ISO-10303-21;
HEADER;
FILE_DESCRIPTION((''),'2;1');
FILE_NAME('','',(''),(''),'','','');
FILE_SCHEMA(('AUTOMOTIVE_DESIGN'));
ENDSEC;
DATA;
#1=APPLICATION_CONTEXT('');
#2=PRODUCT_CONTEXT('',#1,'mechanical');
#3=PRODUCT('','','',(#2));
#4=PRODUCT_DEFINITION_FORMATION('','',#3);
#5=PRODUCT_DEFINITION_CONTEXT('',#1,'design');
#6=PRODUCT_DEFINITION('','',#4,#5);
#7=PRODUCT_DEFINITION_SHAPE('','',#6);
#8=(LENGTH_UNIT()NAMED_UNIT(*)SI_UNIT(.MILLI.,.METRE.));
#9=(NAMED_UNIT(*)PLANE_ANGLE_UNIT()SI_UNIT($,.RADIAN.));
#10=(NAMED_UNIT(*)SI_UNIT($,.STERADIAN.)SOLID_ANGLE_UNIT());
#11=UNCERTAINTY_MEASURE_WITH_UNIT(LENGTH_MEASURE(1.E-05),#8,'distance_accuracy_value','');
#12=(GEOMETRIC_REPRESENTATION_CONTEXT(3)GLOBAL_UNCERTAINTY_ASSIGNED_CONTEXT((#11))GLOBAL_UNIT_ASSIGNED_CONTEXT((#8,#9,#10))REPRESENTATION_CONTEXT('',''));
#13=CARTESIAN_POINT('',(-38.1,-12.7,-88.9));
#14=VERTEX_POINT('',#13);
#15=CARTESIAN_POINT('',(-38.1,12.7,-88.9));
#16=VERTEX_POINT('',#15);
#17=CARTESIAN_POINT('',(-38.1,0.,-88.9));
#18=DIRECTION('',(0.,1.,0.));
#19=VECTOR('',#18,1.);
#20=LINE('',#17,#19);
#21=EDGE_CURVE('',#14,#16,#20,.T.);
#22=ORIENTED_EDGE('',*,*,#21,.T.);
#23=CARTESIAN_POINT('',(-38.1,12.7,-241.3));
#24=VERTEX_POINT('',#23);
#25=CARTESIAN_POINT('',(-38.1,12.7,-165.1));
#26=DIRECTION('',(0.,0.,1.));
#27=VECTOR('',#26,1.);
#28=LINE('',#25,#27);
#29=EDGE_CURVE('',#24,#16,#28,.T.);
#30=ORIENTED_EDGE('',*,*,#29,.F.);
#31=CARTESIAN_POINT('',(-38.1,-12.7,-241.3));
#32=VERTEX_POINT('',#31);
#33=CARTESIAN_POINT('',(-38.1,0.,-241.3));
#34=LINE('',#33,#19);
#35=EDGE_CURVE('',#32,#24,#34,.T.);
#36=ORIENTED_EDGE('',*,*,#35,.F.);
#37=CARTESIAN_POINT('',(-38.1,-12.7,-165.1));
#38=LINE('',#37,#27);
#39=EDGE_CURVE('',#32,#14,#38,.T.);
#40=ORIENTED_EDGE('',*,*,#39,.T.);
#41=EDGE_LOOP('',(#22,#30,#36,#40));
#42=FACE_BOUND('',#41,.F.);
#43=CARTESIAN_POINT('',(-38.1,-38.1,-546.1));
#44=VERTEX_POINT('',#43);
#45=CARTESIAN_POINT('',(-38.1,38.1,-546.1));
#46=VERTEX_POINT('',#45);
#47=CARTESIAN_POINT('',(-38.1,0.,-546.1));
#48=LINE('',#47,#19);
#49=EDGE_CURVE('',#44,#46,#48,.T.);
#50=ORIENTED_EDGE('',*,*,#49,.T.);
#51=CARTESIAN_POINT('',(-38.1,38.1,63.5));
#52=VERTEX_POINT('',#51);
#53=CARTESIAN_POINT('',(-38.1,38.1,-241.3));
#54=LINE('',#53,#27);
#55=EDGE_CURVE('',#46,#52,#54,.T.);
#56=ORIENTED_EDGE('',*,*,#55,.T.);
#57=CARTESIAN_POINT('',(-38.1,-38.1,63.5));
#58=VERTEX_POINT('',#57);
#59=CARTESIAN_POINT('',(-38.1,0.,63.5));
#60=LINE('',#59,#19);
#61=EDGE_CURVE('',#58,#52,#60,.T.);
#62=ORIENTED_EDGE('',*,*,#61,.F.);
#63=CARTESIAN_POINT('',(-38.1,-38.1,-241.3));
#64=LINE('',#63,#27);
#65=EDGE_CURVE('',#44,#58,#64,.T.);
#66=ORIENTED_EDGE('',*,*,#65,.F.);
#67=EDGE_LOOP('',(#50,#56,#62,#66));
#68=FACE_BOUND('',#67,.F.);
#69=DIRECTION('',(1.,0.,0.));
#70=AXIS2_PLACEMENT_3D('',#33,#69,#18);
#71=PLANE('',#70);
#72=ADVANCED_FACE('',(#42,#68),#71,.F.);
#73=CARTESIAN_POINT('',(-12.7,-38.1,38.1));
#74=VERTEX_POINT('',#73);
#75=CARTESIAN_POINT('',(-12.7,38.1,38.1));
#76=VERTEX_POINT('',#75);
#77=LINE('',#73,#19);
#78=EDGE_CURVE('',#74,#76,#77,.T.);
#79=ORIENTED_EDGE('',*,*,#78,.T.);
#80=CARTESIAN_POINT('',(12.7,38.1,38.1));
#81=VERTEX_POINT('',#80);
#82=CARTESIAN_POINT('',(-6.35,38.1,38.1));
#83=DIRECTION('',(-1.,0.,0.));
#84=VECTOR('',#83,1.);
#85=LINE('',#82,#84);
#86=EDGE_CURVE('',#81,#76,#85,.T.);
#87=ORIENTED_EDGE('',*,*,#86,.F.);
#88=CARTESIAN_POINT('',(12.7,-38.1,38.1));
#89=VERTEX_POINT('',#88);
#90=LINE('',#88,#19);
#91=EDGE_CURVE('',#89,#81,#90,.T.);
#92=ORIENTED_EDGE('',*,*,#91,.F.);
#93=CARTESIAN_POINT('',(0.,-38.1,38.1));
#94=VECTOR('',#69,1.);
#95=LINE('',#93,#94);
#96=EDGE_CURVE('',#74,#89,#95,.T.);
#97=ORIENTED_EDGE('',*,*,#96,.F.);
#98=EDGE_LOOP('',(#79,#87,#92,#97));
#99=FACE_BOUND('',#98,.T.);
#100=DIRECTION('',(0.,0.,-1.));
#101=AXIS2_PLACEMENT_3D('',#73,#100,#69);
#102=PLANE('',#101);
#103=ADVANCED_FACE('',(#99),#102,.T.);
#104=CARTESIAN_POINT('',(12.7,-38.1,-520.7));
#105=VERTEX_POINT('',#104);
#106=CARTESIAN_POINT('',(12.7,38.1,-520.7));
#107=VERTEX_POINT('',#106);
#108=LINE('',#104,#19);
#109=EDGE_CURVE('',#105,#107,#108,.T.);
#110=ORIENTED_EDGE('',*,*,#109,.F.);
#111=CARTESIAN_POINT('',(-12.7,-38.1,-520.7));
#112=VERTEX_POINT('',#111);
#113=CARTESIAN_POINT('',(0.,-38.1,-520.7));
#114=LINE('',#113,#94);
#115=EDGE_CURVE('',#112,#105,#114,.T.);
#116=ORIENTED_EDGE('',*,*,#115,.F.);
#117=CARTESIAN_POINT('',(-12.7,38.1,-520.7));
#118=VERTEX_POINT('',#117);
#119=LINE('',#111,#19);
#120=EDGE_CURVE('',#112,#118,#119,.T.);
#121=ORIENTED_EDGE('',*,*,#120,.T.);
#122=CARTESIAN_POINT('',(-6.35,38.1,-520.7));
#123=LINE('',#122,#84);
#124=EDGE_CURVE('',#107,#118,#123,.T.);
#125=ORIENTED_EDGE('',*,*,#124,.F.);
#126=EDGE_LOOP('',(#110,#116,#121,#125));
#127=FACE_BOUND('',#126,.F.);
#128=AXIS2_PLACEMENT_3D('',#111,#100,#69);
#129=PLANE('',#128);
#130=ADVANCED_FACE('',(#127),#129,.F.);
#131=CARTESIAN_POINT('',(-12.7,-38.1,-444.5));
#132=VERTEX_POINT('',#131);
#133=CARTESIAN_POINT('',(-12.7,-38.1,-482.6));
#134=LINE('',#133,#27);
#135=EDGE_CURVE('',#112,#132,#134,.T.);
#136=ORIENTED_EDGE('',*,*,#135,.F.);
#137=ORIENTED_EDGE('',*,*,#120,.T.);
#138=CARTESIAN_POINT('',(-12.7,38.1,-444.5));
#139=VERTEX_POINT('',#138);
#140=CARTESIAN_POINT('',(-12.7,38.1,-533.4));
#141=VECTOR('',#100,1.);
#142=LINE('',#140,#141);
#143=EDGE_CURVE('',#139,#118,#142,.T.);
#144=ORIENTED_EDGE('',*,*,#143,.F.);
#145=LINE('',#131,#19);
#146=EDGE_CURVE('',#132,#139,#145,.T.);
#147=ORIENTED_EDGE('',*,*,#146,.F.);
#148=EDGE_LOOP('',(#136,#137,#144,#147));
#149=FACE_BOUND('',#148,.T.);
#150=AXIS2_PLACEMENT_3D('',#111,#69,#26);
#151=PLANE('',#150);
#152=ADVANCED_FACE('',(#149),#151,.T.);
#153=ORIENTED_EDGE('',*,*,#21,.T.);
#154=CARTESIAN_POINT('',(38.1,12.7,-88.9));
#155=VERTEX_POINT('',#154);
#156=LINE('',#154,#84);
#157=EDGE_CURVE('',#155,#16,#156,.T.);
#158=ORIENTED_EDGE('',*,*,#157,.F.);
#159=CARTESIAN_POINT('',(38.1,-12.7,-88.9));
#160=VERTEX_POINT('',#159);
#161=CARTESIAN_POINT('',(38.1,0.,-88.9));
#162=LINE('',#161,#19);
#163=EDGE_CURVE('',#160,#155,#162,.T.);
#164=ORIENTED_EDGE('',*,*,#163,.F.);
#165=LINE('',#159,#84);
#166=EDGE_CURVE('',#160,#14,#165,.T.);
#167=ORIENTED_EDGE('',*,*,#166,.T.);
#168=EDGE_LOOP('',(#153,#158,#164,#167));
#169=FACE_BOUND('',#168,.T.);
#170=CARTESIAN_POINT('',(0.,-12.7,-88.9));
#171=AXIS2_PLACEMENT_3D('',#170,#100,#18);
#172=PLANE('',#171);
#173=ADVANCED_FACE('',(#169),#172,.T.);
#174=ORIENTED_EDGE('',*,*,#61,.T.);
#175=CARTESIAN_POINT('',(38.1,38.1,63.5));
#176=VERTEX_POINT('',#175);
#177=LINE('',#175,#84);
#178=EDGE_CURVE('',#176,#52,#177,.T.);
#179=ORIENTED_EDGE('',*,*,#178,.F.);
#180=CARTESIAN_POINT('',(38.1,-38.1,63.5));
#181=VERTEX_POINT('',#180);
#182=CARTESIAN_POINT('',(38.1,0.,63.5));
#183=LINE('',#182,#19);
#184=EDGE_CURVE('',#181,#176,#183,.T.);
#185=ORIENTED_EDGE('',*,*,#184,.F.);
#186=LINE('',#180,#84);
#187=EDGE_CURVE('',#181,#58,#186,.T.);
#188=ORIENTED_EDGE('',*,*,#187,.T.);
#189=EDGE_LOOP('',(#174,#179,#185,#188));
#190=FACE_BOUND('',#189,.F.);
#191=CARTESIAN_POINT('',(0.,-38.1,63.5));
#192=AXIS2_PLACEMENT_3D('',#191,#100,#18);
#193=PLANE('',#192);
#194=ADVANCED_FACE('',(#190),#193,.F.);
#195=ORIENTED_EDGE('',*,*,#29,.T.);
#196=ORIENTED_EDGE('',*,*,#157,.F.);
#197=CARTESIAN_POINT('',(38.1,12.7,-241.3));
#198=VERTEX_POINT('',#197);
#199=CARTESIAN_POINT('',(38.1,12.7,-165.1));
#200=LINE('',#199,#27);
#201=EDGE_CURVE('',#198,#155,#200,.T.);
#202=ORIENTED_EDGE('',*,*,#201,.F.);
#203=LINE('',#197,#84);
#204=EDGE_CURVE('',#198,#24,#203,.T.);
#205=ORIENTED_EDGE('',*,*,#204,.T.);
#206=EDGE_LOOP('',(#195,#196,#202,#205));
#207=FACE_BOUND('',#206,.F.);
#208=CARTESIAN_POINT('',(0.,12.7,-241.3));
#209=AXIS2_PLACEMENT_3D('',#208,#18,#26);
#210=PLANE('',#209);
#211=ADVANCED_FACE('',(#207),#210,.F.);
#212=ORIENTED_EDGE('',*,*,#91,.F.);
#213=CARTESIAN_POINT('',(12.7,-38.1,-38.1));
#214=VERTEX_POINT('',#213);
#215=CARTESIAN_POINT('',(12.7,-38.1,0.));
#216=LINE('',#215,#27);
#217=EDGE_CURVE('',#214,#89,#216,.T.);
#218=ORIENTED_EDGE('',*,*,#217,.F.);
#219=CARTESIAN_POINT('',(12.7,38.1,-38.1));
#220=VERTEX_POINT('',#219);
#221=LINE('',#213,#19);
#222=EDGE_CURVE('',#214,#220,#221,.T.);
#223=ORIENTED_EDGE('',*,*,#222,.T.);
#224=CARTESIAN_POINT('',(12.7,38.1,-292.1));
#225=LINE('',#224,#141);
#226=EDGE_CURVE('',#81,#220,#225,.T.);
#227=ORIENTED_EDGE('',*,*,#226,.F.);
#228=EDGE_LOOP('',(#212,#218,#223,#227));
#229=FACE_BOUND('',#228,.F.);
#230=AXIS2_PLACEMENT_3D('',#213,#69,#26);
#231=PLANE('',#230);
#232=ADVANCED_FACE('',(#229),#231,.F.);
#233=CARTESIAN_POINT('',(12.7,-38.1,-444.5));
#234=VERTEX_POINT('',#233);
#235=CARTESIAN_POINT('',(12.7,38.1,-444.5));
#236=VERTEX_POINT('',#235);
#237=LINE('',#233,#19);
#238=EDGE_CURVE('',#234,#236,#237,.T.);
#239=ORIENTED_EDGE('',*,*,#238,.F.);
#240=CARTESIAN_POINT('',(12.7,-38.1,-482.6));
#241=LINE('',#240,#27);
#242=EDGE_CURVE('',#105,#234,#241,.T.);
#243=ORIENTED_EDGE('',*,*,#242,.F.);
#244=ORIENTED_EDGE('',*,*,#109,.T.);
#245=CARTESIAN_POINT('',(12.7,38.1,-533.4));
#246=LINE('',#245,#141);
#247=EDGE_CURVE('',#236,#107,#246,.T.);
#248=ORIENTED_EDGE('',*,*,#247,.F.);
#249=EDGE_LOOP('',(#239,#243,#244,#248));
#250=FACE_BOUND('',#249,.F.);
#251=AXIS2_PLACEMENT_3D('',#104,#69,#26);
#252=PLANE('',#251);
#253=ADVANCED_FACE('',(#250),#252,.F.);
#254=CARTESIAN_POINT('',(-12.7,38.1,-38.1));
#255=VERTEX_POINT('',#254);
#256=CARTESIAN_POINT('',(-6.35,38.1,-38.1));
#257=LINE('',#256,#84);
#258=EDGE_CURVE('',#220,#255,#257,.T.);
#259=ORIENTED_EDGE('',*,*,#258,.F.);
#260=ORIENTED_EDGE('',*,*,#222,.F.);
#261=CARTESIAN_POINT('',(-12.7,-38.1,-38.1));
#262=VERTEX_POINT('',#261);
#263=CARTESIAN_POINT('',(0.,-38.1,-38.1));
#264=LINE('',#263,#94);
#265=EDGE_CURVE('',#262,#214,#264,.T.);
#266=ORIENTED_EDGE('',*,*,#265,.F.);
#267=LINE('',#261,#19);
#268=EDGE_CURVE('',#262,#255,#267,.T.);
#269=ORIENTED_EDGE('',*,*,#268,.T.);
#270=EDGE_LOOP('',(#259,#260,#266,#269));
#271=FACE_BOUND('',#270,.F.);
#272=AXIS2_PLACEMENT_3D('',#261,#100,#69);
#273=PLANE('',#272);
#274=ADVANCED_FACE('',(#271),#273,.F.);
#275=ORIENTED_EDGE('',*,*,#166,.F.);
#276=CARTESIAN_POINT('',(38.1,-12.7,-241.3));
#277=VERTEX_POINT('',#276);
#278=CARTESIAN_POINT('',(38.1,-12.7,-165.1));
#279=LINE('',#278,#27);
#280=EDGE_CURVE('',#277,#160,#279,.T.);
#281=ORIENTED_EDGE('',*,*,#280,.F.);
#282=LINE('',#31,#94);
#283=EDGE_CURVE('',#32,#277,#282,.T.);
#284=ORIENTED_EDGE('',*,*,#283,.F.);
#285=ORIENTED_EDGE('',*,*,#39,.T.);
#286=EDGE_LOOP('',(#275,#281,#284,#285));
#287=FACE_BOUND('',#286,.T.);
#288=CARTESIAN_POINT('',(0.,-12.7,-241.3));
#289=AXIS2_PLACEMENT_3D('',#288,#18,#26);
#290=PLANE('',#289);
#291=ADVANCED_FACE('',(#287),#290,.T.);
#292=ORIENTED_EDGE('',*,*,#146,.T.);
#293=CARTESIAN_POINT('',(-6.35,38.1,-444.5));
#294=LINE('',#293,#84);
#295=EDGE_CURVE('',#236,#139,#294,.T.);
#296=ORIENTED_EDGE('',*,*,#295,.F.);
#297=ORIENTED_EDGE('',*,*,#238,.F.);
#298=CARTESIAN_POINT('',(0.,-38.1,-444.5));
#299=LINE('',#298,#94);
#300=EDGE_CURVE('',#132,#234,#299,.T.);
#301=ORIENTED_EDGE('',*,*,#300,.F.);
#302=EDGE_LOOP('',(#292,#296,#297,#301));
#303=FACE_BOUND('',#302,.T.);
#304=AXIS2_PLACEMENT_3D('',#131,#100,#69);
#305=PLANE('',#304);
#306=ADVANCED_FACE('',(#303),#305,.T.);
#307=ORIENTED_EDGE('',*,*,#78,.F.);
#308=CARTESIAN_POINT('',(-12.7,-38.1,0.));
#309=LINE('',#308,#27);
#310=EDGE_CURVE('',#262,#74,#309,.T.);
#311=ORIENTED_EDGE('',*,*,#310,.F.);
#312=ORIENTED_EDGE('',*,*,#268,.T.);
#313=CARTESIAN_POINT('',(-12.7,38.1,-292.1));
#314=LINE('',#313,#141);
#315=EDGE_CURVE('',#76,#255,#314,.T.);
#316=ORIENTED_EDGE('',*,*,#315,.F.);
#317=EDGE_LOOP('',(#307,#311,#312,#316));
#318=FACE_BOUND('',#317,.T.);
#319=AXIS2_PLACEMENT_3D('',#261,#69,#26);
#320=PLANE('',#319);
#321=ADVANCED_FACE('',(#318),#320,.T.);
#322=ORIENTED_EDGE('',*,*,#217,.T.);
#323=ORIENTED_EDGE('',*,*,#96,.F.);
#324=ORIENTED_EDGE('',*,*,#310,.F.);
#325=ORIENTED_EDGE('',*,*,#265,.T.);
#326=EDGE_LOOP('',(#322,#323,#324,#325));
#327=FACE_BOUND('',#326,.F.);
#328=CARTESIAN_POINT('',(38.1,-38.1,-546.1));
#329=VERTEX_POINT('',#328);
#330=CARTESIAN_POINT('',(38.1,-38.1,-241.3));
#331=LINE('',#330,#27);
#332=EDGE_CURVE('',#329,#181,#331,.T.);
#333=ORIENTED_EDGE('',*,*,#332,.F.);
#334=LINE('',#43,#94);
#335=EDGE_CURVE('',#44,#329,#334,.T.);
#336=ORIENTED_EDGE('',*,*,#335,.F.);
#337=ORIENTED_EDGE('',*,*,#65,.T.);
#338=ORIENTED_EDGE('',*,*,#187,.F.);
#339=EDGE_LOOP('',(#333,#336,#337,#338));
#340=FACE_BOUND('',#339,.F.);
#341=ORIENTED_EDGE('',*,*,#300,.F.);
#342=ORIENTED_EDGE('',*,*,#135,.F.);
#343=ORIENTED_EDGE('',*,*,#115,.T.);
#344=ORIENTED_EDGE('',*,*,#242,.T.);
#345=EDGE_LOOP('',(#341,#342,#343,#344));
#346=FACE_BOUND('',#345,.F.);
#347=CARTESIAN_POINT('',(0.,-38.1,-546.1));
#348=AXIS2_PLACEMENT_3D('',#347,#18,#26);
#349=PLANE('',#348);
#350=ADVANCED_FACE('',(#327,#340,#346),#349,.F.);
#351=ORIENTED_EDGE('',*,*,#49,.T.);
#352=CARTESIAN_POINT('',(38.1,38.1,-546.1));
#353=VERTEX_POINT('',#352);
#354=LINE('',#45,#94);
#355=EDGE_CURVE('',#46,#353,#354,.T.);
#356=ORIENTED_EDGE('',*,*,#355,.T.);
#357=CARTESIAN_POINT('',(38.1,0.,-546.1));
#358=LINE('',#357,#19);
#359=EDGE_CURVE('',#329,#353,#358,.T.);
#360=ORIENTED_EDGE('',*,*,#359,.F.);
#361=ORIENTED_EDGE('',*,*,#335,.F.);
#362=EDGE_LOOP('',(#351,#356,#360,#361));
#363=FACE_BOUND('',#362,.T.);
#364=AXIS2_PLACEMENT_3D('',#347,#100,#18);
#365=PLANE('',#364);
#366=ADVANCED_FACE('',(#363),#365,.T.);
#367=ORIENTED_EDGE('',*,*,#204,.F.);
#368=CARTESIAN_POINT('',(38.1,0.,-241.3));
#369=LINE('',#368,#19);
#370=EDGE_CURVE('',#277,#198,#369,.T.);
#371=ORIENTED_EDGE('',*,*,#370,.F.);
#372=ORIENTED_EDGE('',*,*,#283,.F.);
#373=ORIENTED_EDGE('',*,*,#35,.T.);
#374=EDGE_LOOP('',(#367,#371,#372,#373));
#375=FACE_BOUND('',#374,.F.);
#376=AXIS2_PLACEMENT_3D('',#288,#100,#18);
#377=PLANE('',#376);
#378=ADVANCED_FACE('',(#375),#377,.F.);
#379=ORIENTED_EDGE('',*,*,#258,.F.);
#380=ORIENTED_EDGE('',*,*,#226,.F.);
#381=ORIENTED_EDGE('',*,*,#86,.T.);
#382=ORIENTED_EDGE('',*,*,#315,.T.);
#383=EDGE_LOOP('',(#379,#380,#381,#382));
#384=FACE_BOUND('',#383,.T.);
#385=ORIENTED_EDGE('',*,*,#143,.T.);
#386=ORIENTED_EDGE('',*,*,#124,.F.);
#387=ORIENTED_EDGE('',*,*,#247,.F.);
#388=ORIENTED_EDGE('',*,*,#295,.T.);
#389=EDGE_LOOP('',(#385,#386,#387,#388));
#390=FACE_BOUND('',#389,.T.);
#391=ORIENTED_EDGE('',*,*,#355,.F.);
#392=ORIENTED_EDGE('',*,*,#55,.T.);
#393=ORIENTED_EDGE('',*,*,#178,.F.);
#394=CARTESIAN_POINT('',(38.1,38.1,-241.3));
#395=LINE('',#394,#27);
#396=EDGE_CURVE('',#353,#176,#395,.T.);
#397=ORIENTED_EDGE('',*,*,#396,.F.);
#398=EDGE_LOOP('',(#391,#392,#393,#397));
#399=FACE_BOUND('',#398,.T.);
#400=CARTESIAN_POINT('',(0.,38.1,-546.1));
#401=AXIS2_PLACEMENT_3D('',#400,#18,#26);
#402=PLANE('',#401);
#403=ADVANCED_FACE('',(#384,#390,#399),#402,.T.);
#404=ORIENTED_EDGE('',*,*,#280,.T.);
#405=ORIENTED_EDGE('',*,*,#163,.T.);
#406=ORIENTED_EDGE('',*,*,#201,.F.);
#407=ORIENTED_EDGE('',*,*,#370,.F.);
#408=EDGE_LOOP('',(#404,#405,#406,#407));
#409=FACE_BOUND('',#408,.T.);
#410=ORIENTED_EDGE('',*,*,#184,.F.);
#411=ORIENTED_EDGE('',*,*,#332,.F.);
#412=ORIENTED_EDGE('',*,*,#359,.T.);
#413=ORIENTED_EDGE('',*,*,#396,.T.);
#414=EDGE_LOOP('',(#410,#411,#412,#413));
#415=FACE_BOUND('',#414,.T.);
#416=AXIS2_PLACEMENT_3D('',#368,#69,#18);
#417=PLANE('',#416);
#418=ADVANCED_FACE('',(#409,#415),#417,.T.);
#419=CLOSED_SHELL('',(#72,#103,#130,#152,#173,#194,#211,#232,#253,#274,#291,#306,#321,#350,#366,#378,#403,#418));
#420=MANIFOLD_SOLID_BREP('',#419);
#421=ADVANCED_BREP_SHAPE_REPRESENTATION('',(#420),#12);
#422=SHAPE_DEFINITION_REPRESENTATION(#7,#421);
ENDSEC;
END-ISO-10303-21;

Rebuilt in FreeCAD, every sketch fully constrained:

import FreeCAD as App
import Part
import Sketcher
Q = App.Units.Quantity

doc = App.newDocument("Part")
params = doc.addObject("Spreadsheet::Sheet", "Params")
for row, (alias, value) in enumerate([
    ("sketch1_width", "3 in"),
    ("sketch1_width2", "1 in"),
    ("sketch1_height", "24 in"),
    ("sketch1_height2", "6 in"),
    ("pad1_length", "1.5 in"),
    ("pad1_length2", "1.5 in"),
    ("sketch2_width", "1 in"),
    ("sketch2_height", "3 in"),
    ("pocket1_length", "4 in"),
], start=1):
    params.set(f"A{row}", alias)
    params.set(f"B{row}", "=" + value)
    params.setAlias(f"B{row}", alias)

body = doc.addObject("PartDesign::Body", "Body")

# Sketch on YZ plane
sketch1 = body.newObject("Sketcher::SketchObject", "Sketch")
sketch1.AttachmentSupport = (doc.getObject("YZ_Plane"), [""])
sketch1.MapMode = "FlatFace"
sketch1.addGeometry([
    Part.LineSegment(App.Vector(-38, 64, 0), App.Vector(-38, -546, 0)),  # 0
    Part.LineSegment(App.Vector(-38, -546, 0), App.Vector(38, -546, 0)),  # 1
    Part.LineSegment(App.Vector(38, -546, 0), App.Vector(38, 64, 0)),  # 2
    Part.LineSegment(App.Vector(38, 64, 0), App.Vector(-38, 64, 0)),  # 3
    Part.LineSegment(App.Vector(13, -241, 0), App.Vector(-13, -241, 0)),  # 4
    Part.LineSegment(App.Vector(-13, -241, 0), App.Vector(-13, -89, 0)),  # 5
    Part.LineSegment(App.Vector(-13, -89, 0), App.Vector(13, -89, 0)),  # 6
    Part.LineSegment(App.Vector(13, -89, 0), App.Vector(13, -241, 0)),  # 7
], False)
sketch1.addConstraint([
    Sketcher.Constraint("Coincident", 0, 2, 1, 1),
    Sketcher.Constraint("Coincident", 1, 2, 2, 1),
    Sketcher.Constraint("Coincident", 2, 2, 3, 1),
    Sketcher.Constraint("Coincident", 3, 2, 0, 1),
    Sketcher.Constraint("Coincident", 4, 2, 5, 1),
    Sketcher.Constraint("Coincident", 5, 2, 6, 1),
    Sketcher.Constraint("Coincident", 6, 2, 7, 1),
    Sketcher.Constraint("Coincident", 7, 2, 4, 1),
    Sketcher.Constraint("Vertical", 0),
    Sketcher.Constraint("Horizontal", 1),
    Sketcher.Constraint("Vertical", 2),
    Sketcher.Constraint("Horizontal", 3),
    Sketcher.Constraint("Horizontal", 4),
    Sketcher.Constraint("Vertical", 5),
    Sketcher.Constraint("Horizontal", 6),
    Sketcher.Constraint("Vertical", 7),
    Sketcher.Constraint("DistanceX", 1, 1, 1, 2, Q("3 in")),
    Sketcher.Constraint("DistanceX", 4, 2, 4, 1, Q("1 in")),
    Sketcher.Constraint("DistanceY", 0, 2, 0, 1, Q("24 in")),
    Sketcher.Constraint("DistanceY", 5, 1, 5, 2, Q("6 in")),
    Sketcher.Constraint("DistanceX", 0, 2, 4, 2, Q("1 in")),
    Sketcher.Constraint("DistanceY", 0, 2, 4, 2, Q("12 in")),
    Sketcher.Constraint("DistanceX", 0, 2, -1, 1, Q("1.5 in")),
    Sketcher.Constraint("DistanceY", 0, 2, -1, 1, Q("21.5 in")),
])
sketch1.setExpression("Constraints[16]", "Params.sketch1_width")
sketch1.setExpression("Constraints[17]", "Params.sketch1_width2")
sketch1.setExpression("Constraints[18]", "Params.sketch1_height")
sketch1.setExpression("Constraints[19]", "Params.sketch1_height2")
pad1 = body.newObject("PartDesign::Pad", "Pad")
pad1.Profile = sketch1
pad1.Type = "TwoLengths"
pad1.setExpression("Length", "Params.pad1_length")
pad1.setExpression("Length2", "Params.pad1_length2")

# Sketch on XZ plane
sketch2 = body.newObject("Sketcher::SketchObject", "Sketch001")
sketch2.AttachmentSupport = (doc.getObject("XZ_Plane"), [""])
sketch2.MapMode = "FlatFace"
sketch2.AttachmentOffset = App.Placement(App.Vector(0, 0, 1.5 * 25.4), App.Rotation())
sketch2.addGeometry([
    Part.LineSegment(App.Vector(-13, 38, 0), App.Vector(-13, -38, 0)),  # 0
    Part.LineSegment(App.Vector(-13, -38, 0), App.Vector(13, -38, 0)),  # 1
    Part.LineSegment(App.Vector(13, -38, 0), App.Vector(13, 38, 0)),  # 2
    Part.LineSegment(App.Vector(13, 38, 0), App.Vector(-13, 38, 0)),  # 3
    Part.LineSegment(App.Vector(-13, -444, 0), App.Vector(-13, -521, 0)),  # 4
    Part.LineSegment(App.Vector(-13, -521, 0), App.Vector(13, -521, 0)),  # 5
    Part.LineSegment(App.Vector(13, -521, 0), App.Vector(13, -444, 0)),  # 6
    Part.LineSegment(App.Vector(13, -444, 0), App.Vector(-13, -444, 0)),  # 7
], False)
sketch2.addConstraint([
    Sketcher.Constraint("Coincident", 0, 2, 1, 1),
    Sketcher.Constraint("Coincident", 1, 2, 2, 1),
    Sketcher.Constraint("Coincident", 2, 2, 3, 1),
    Sketcher.Constraint("Coincident", 3, 2, 0, 1),
    Sketcher.Constraint("Coincident", 4, 2, 5, 1),
    Sketcher.Constraint("Coincident", 5, 2, 6, 1),
    Sketcher.Constraint("Coincident", 6, 2, 7, 1),
    Sketcher.Constraint("Coincident", 7, 2, 4, 1),
    Sketcher.Constraint("Vertical", 0),
    Sketcher.Constraint("Horizontal", 1),
    Sketcher.Constraint("Vertical", 2),
    Sketcher.Constraint("Horizontal", 3),
    Sketcher.Constraint("Vertical", 4),
    Sketcher.Constraint("Horizontal", 5),
    Sketcher.Constraint("Vertical", 6),
    Sketcher.Constraint("Horizontal", 7),
    Sketcher.Constraint("Symmetric", 0, 2, 2, 2, -1, 1),
    Sketcher.Constraint("Vertical", 3, 2, 4, 2),
    Sketcher.Constraint("Vertical", 2, 2, 5, 2),
    Sketcher.Constraint("Equal", 2, 4),
    Sketcher.Constraint("DistanceX", 1, 1, 1, 2, Q("1 in")),
    Sketcher.Constraint("DistanceY", 0, 2, 0, 1, Q("3 in")),
    Sketcher.Constraint("DistanceY", 4, 2, 0, 2, Q("19 in")),
])
sketch2.setExpression("Constraints[20]", "Params.sketch2_width")
sketch2.setExpression("Constraints[21]", "Params.sketch2_height")
pocket1 = body.newObject("PartDesign::Pocket", "Pocket")
pocket1.Profile = sketch2
pocket1.setExpression("Length", "Params.pocket1_length")

doc.recompute()
